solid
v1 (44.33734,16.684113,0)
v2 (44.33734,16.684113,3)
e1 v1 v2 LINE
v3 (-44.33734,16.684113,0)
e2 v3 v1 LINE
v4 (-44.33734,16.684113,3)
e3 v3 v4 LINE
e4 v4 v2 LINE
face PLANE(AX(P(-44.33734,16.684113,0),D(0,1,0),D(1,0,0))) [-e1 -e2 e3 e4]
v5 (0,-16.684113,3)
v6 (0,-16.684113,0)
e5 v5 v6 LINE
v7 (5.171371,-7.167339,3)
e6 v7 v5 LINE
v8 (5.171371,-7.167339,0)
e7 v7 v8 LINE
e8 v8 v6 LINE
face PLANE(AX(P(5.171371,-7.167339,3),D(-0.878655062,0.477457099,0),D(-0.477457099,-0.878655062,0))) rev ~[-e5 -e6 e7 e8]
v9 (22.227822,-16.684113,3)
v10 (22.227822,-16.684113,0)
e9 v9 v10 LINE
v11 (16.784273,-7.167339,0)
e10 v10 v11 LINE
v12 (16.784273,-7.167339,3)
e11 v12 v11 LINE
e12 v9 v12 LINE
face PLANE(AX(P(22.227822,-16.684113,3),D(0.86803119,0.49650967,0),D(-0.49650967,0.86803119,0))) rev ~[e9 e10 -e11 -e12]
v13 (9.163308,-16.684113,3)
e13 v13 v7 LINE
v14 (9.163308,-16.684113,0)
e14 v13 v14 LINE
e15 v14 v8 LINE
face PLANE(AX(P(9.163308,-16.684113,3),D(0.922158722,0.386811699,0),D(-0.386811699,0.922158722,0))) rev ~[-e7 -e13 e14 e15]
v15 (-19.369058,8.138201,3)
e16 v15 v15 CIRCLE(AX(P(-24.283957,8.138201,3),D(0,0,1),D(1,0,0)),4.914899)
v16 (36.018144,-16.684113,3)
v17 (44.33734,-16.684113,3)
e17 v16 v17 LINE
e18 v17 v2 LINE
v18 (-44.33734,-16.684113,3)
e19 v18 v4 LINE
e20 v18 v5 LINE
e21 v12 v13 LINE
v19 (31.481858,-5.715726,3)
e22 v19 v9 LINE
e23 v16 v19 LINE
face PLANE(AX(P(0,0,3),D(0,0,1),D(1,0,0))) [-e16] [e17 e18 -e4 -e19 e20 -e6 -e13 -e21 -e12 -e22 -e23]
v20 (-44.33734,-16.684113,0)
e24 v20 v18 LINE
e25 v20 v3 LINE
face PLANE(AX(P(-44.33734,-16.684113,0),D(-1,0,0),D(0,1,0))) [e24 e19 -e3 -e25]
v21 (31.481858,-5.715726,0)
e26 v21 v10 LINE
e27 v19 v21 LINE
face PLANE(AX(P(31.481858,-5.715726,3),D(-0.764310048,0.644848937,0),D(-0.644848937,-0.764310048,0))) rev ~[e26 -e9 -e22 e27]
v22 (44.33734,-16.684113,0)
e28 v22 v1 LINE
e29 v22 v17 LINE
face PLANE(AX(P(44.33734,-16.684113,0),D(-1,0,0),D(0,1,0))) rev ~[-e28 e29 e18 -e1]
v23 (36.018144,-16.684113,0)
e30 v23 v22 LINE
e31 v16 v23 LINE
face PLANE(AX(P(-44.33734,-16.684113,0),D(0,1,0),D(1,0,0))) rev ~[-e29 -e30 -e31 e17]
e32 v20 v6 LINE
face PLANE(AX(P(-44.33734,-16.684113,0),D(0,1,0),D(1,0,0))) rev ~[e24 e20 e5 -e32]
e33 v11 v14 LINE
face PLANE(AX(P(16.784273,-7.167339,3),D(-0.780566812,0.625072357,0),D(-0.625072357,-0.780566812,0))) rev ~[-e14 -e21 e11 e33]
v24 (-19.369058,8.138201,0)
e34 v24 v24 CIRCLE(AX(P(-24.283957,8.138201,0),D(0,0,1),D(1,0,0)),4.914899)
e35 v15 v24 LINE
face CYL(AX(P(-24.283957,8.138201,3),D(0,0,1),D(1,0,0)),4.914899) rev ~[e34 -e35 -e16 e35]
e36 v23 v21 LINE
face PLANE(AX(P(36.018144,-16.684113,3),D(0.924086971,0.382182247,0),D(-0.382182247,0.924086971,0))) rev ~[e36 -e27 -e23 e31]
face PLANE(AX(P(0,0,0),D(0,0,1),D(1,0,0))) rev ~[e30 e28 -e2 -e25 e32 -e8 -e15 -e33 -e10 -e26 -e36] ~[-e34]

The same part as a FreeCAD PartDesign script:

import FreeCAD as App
import Part
import Sketcher
Q = App.Units.Quantity


def add_polygon(sketch, points):
    """Adds a closed chain of lines whose ends are joined by coincident constraints."""
    first, n = sketch.GeometryCount, len(points)
    for a, b in zip(points, points[1:] + points[:1]):
        sketch.addGeometry(Part.LineSegment(App.Vector(*a, 0), App.Vector(*b, 0)), False)
    for i in range(n):
        sketch.addConstraint(Sketcher.Constraint("Coincident", first + i, 2, first + (i + 1) % n, 1))

doc = App.newDocument("Part")
body = doc.addObject("PartDesign::Body", "Body")

sketch1 = body.newObject("Sketcher::SketchObject", "Sketch")
sketch1.AttachmentSupport = (doc.getObject("XY_Plane"), [""])
sketch1.MapMode = "FlatFace"
add_polygon(sketch1, [(-44, 17), (-44, -17), (44, -17), (44, 17)])
sketch1.addConstraint([
    Sketcher.Constraint("Vertical", 0),
    Sketcher.Constraint("Horizontal", 1),
    Sketcher.Constraint("Vertical", 2),
    Sketcher.Constraint("Horizontal", 3),
    Sketcher.Constraint("Symmetric", 0, 2, 2, 2, -1, 1),
    Sketcher.Constraint("DistanceX", 1, 1, 1, 2, Q("88.67468 mm")),
    Sketcher.Constraint("DistanceY", 0, 2, 0, 1, Q("33.368226 mm")),
])
pad1 = body.newObject("PartDesign::Pad", "Pad")
pad1.Profile = sketch1
pad1.Length = 3

sketch2 = body.newObject("Sketcher::SketchObject", "Sketch001")
sketch2.AttachmentSupport = (doc.getObject("XY_Plane"), [""])
sketch2.MapMode = "FlatFace"
sketch2.AttachmentOffset = App.Placement(App.Vector(0, 0, 3), App.Rotation())
sketch2.addGeometry(Part.Circle(App.Vector(-24.3, 8.1, 0), App.Vector(0, 0, 1), 4.9), False)
sketch2.addConstraint([
    Sketcher.Constraint("Diameter", 0, Q("9.829798 mm")),
    Sketcher.Constraint("DistanceY", -1, 1, 0, 3, Q("8.138201 mm")),
    Sketcher.Constraint("DistanceX", 0, 3, -1, 1, Q("24.283957 mm")),
])
pocket1 = body.newObject("PartDesign::Pocket", "Pocket")
pocket1.Profile = sketch2
pocket1.Length = 25

sketch3 = body.newObject("Sketcher::SketchObject", "Sketch002")
sketch3.AttachmentSupport = (doc.getObject("XY_Plane"), [""])
sketch3.MapMode = "FlatFace"
sketch3.AttachmentOffset = App.Placement(App.Vector(0, 0, 3), App.Rotation())
add_polygon(sketch3, [(5, -7), (0, -17), (19, -48), (36, -17), (31, -6), (22, -17), (17, -7), (9, -17)])
sketch3.addConstraint([
    Sketcher.Constraint("PointOnObject", 0, 2, -2),
    Sketcher.Constraint("Horizontal", 0, 2, 2, 2),
    Sketcher.Constraint("Horizontal", 2, 2, 4, 2),
    Sketcher.Constraint("Horizontal", 4, 2, 6, 2),
    Sketcher.Constraint("Horizontal", 5, 2, 7, 2),
    Sketcher.Constraint("DistanceX", 1, 2, 2, 2, Q("17.237901 mm")),
    Sketcher.Constraint("DistanceX", 7, 2, 5, 2, Q("11.612902 mm")),
    Sketcher.Constraint("Distance", 0, Q("10.831069 mm")),
    Sketcher.Constraint("Distance", 2, Q("35.741452 mm")),
    Sketcher.Constraint("Distance", 3, Q("11.869431 mm")),
    Sketcher.Constraint("Distance", 5, Q("10.963631 mm")),
    Sketcher.Constraint("DistanceX", -1, 1, 4, 2, Q("22.227822 mm")),
    Sketcher.Constraint("DistanceY", 5, 2, -1, 1, Q("7.167339 mm")),
    Sketcher.Constraint("DistanceX", -1, 1, 6, 2, Q("9.163308 mm")),
    Sketcher.Constraint("DistanceX", 1, 2, 4, 2, Q("3.447579 mm")),
    Sketcher.Constraint("DistanceX", 6, 2, 3, 2, Q("22.31855 mm")),
])
pocket2 = body.newObject("PartDesign::Pocket", "Pocket001")
pocket2.Profile = sketch3
pocket2.Length = 25

doc.recompute()
